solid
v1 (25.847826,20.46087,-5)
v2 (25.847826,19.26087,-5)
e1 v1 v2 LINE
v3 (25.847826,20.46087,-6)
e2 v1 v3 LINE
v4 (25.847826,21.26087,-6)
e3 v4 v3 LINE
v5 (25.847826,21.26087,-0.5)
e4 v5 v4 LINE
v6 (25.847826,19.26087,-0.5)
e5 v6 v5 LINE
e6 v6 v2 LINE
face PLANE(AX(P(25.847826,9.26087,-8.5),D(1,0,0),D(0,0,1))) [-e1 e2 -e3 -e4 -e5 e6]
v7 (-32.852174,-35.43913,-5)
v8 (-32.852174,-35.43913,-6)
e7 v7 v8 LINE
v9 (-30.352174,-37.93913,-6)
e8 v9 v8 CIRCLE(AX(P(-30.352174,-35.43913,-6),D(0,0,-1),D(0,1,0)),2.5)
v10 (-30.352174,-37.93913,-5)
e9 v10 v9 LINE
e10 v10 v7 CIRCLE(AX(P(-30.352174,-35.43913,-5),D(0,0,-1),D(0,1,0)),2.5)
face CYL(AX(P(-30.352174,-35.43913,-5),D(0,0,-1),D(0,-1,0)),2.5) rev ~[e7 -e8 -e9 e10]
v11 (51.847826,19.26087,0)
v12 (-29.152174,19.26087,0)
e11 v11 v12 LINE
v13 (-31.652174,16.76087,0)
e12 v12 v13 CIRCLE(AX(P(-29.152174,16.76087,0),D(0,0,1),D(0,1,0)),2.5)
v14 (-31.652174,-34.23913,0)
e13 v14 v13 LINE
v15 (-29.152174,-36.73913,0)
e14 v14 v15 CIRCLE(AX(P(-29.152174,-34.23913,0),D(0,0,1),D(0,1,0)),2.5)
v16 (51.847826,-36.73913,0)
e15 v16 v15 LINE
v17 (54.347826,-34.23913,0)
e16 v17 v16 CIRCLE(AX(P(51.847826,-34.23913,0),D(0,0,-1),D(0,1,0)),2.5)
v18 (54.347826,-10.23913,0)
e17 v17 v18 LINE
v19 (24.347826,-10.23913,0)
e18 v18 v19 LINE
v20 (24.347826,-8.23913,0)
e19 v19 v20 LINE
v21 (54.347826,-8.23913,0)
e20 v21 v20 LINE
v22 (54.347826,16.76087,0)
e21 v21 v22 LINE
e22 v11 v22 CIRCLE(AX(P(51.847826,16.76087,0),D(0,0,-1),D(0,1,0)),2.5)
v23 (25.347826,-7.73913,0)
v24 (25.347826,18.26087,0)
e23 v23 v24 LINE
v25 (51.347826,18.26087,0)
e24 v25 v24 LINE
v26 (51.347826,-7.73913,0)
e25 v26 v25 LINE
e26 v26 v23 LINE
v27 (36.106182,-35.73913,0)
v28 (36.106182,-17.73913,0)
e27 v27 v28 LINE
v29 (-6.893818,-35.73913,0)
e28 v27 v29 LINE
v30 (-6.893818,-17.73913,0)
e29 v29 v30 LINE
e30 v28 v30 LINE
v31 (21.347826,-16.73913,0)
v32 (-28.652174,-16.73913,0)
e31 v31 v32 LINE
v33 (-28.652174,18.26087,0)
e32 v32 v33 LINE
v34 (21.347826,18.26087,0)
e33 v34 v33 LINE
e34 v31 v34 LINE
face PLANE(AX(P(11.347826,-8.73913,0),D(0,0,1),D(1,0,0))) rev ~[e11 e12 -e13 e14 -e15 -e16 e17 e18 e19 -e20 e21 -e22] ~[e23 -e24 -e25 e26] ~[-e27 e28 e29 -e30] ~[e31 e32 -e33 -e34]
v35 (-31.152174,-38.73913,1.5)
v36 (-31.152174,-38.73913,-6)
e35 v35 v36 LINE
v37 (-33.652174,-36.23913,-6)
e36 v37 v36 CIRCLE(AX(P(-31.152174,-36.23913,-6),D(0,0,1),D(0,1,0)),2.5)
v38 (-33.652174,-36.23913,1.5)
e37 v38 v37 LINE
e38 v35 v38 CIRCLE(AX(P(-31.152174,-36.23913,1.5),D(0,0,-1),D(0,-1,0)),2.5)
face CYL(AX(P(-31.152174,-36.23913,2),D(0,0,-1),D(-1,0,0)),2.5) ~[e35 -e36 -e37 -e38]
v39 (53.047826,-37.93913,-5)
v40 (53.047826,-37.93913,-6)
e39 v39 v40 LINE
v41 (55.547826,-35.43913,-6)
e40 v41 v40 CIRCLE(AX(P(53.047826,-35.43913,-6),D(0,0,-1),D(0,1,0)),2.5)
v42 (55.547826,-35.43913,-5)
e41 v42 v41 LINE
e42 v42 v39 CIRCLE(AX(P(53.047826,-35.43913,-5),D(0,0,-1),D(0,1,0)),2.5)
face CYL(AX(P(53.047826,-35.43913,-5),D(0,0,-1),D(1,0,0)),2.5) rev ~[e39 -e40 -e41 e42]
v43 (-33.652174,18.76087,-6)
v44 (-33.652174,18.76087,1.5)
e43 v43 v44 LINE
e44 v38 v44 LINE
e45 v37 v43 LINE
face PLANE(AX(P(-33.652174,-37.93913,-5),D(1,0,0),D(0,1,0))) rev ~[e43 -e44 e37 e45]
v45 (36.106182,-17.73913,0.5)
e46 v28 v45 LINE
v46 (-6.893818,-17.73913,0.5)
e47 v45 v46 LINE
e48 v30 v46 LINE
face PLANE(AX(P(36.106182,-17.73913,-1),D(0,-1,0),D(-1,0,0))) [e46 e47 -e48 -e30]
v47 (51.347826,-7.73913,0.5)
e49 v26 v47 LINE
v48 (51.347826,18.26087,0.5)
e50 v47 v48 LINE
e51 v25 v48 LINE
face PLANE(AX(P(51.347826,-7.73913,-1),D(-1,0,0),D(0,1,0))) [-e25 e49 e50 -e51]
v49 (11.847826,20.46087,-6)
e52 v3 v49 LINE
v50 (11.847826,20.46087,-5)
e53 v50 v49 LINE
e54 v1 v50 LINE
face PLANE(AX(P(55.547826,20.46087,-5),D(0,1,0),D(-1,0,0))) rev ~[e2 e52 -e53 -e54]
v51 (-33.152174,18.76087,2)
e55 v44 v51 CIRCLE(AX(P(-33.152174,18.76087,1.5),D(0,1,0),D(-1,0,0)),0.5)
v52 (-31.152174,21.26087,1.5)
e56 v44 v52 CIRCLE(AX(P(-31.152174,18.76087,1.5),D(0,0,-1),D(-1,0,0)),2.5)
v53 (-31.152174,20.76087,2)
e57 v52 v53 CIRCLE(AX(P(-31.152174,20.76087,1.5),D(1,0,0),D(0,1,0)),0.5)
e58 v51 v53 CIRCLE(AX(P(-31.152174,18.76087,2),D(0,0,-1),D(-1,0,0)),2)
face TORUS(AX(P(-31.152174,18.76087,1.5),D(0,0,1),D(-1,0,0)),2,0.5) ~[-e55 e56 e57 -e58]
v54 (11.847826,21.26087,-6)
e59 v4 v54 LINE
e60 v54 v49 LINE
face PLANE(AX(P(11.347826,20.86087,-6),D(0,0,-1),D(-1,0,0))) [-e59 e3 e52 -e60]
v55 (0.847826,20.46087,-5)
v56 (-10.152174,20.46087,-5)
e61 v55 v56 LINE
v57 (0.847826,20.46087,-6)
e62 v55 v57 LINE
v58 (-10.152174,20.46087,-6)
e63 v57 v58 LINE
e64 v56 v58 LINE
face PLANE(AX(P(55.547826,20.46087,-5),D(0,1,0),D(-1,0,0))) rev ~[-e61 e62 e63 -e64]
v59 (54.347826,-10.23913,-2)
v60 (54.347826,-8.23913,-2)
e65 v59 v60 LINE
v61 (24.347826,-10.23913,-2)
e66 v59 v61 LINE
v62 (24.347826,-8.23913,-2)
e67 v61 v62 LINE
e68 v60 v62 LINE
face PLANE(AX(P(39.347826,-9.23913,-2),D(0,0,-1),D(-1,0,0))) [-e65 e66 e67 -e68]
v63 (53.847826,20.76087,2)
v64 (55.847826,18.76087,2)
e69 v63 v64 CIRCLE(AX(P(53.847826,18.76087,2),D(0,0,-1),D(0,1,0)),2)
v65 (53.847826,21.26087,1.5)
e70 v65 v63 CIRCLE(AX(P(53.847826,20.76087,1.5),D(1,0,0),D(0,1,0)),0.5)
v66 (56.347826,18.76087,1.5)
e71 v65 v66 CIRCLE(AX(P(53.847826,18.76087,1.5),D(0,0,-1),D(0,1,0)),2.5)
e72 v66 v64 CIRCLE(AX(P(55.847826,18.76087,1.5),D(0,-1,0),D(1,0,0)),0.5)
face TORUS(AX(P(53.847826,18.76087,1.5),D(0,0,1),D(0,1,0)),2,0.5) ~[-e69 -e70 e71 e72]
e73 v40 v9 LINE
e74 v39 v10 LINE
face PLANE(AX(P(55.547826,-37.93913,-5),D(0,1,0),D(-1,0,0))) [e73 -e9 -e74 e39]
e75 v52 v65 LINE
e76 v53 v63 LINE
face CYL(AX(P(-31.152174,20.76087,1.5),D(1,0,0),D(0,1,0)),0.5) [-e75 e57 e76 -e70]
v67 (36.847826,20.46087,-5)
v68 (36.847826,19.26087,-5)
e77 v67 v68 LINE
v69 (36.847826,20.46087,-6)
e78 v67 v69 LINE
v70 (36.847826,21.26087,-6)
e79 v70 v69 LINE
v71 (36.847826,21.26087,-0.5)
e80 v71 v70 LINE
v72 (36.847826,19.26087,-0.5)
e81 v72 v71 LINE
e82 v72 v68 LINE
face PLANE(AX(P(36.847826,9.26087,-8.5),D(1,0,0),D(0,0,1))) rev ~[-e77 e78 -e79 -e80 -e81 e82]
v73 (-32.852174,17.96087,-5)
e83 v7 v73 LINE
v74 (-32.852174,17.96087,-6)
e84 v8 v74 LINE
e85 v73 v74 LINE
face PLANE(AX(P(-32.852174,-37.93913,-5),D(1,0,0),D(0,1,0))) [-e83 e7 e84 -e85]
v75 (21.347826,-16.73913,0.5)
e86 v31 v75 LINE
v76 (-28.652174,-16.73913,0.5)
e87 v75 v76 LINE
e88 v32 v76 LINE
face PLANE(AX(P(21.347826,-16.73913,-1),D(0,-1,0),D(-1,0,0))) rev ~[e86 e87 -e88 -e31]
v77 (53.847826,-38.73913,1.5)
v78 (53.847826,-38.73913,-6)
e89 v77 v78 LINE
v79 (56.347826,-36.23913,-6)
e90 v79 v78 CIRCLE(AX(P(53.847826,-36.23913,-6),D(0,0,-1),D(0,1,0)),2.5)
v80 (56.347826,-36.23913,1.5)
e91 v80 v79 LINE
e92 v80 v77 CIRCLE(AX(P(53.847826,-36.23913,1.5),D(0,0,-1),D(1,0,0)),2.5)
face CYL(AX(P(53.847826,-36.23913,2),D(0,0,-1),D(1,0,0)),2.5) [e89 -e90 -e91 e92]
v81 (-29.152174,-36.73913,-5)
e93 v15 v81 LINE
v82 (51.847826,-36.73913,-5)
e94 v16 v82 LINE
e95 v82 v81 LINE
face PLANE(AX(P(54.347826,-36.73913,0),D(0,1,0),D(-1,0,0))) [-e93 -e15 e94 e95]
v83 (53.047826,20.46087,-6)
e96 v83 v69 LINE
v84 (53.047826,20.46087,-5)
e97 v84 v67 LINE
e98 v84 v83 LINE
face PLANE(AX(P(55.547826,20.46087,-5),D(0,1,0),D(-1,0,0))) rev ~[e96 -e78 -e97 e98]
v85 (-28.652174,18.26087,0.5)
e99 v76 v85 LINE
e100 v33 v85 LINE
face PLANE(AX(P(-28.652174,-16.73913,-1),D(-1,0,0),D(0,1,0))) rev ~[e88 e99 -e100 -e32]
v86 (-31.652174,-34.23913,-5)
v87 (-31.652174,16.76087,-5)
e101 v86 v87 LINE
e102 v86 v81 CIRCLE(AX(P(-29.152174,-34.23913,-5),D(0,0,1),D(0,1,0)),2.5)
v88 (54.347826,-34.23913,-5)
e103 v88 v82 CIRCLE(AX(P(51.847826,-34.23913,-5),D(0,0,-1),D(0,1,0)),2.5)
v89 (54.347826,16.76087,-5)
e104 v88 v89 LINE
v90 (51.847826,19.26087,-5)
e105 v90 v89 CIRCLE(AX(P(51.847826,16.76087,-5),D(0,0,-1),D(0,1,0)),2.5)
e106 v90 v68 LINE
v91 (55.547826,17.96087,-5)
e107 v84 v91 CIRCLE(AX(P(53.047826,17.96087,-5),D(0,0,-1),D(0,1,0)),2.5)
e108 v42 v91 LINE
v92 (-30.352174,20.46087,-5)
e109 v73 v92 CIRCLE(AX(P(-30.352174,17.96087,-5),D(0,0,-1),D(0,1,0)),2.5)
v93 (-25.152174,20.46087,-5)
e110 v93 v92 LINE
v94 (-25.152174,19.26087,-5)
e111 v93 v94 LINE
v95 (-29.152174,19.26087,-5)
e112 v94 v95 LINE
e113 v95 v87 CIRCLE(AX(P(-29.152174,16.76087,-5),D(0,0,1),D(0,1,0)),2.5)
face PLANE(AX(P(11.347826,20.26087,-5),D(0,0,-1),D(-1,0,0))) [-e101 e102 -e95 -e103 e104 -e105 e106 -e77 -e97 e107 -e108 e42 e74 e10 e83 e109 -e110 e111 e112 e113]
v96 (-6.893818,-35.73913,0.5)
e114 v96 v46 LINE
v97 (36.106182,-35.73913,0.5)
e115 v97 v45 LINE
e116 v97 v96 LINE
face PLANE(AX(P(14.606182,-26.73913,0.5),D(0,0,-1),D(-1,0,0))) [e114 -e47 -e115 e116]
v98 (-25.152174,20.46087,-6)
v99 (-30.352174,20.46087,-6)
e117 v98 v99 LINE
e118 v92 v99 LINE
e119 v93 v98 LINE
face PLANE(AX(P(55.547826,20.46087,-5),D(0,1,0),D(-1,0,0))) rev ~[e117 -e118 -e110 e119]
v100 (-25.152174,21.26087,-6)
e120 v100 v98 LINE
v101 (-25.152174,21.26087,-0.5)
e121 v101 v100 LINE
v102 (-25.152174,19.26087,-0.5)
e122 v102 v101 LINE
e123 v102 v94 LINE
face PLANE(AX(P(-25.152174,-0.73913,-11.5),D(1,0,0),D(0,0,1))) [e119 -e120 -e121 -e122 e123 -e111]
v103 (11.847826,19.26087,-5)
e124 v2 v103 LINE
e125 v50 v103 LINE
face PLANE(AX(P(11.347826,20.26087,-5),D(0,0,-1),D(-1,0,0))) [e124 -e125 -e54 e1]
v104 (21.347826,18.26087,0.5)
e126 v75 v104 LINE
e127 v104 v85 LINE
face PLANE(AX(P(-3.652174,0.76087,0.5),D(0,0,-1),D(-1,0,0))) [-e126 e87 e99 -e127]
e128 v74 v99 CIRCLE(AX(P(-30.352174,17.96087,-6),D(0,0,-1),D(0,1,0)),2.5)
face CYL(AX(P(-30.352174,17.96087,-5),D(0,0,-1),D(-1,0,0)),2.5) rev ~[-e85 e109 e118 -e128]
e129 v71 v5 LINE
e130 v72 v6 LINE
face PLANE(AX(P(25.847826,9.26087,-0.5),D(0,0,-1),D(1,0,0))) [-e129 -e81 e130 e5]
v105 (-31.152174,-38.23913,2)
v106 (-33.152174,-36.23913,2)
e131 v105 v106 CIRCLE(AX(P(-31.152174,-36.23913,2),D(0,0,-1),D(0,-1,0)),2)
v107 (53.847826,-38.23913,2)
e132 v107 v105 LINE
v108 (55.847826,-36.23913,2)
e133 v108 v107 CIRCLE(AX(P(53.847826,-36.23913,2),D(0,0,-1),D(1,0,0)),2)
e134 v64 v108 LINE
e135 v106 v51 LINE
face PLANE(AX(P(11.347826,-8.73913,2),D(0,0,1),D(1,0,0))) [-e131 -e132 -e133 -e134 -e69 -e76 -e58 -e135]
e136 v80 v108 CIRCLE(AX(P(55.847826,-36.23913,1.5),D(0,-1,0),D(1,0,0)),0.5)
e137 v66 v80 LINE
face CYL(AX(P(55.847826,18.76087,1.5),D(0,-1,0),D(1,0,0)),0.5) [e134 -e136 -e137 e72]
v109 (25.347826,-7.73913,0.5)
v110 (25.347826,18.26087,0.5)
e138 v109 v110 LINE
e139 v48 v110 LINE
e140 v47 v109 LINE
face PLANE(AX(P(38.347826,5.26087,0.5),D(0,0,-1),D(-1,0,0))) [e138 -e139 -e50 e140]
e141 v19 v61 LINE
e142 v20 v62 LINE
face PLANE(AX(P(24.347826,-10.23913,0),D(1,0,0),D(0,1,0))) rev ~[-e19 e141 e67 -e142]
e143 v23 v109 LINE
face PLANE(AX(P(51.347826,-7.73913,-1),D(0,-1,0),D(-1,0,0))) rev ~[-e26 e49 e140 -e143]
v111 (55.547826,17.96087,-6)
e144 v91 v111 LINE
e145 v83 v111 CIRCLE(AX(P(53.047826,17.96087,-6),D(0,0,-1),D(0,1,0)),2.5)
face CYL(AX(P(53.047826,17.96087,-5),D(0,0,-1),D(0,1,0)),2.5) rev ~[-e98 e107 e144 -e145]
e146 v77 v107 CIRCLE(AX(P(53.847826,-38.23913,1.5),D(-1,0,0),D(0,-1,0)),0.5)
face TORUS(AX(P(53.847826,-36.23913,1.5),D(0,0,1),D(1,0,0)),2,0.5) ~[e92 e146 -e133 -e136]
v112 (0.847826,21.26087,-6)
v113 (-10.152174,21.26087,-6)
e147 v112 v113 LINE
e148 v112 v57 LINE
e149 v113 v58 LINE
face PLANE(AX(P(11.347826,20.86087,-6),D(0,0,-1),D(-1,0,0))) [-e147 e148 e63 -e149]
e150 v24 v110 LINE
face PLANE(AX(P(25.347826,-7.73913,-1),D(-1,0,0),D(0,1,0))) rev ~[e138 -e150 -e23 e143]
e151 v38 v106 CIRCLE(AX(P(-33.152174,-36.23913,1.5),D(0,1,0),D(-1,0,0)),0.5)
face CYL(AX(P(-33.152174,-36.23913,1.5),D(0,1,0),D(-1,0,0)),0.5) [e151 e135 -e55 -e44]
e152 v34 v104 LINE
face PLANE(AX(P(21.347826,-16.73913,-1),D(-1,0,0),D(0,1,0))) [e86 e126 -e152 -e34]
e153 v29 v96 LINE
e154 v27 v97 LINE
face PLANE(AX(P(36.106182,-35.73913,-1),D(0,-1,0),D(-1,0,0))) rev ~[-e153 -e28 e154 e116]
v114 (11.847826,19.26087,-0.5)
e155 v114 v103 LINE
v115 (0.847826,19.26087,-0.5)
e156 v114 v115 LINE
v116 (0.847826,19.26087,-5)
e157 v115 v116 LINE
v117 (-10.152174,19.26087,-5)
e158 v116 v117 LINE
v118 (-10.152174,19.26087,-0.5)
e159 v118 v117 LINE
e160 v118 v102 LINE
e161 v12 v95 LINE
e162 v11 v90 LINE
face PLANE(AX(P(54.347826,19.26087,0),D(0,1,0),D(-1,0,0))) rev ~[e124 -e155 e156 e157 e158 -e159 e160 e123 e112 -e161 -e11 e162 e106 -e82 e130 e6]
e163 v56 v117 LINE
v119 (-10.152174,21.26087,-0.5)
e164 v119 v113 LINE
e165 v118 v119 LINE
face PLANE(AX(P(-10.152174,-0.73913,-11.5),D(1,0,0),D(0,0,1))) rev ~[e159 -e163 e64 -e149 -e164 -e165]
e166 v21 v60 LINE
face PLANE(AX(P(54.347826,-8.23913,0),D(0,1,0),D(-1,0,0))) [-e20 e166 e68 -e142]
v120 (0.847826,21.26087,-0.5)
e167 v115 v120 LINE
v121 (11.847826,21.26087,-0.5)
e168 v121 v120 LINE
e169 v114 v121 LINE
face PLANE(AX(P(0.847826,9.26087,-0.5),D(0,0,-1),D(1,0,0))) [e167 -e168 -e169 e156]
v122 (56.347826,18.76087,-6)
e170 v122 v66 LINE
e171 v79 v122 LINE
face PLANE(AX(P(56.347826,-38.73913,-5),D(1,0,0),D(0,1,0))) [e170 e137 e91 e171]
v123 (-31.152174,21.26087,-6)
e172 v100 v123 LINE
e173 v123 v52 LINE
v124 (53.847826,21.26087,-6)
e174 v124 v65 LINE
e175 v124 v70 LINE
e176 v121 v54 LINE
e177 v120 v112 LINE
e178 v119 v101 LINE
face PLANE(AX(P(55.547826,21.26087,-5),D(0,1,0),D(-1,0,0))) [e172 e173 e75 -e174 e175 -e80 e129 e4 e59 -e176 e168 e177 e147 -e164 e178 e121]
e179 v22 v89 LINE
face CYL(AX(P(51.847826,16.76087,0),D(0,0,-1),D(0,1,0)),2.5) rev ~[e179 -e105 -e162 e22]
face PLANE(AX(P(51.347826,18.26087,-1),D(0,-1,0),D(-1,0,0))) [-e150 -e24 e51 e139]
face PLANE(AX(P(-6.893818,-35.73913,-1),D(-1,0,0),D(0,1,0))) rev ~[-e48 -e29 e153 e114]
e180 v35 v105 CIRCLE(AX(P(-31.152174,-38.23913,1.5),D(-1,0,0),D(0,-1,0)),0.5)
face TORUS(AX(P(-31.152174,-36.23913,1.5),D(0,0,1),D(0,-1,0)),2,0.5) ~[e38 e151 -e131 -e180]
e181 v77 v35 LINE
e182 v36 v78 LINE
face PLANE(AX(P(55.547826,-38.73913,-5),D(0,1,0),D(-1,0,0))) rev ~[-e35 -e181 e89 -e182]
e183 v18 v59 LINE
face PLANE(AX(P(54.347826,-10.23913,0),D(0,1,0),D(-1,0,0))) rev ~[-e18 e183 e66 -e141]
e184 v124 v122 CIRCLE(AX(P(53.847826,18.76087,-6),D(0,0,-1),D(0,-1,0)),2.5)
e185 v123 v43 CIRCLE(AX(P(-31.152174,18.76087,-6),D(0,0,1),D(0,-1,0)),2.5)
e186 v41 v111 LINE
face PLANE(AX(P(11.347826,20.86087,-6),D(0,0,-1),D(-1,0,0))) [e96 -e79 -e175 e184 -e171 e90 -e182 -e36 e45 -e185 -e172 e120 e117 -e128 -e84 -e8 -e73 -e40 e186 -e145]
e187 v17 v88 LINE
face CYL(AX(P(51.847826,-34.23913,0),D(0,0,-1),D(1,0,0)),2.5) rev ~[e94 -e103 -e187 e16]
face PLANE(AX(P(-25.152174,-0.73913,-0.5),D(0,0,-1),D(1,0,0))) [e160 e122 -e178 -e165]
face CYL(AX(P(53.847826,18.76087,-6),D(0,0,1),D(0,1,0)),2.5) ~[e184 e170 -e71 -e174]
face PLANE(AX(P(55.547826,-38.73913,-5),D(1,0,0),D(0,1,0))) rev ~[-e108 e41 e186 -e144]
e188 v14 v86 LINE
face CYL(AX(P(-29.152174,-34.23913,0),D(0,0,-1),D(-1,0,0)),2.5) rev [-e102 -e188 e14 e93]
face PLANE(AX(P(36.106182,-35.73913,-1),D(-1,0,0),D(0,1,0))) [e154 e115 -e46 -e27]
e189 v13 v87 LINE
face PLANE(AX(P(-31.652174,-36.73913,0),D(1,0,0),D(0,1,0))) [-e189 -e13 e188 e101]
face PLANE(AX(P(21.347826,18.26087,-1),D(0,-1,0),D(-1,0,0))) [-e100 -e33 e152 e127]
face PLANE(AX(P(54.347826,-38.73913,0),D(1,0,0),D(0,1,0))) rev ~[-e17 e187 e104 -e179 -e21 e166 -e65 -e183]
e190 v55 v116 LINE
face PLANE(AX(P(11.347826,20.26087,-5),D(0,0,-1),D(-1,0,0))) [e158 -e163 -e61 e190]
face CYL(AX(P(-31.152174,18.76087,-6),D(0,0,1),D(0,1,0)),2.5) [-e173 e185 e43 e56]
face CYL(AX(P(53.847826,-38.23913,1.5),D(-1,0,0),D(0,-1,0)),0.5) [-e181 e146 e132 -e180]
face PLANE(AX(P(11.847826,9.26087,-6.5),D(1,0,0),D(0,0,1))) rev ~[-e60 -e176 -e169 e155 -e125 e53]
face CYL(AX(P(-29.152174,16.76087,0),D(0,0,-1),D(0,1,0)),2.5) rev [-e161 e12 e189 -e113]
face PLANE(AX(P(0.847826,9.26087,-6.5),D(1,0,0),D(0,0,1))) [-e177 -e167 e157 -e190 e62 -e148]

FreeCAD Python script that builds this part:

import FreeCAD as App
import Part
import Sketcher
from FreeCAD import Vector


def edges_at(feature, points):
    """Names of the edges that pass closest to the given points."""
    edges = feature.Shape.Edges
    near = lambda p: min(range(len(edges)), key=lambda i: edges[i].distToShape(Part.Vertex(*p))[0])
    return sorted({f"Edge{near(p) + 1}" for p in points})


def add_polygon(sketch, points):
    """Adds a closed chain of lines whose ends are joined by coincident constraints."""
    first, n = sketch.GeometryCount, len(points)
    for a, b in zip(points, points[1:] + points[:1]):
        sketch.addGeometry(Part.LineSegment(App.Vector(*a, 0), App.Vector(*b, 0)), False)
    for i in range(n):
        sketch.addConstraint(Sketcher.Constraint("Coincident", first + i, 2, first + (i + 1) % n, 1))

doc = App.newDocument("Part")
body = doc.addObject("PartDesign::Body", "Body")

# Sketch on XY plane
sketch1 = doc.addObject("Sketcher::SketchObject", "Sketch")
body.addObject(sketch1)
sketch1.AttachmentSupport = (doc.XY_Plane, [""])
sketch1.MapMode = "FlatFace"
add_polygon(sketch1, [(-34, 21), (-34, -39), (56, -39), (56, 21)])  # lines 0-3
sketch1.addConstraint(Sketcher.Constraint("Vertical", 0))
sketch1.addConstraint(Sketcher.Constraint("Horizontal", 1))
sketch1.addConstraint(Sketcher.Constraint("Vertical", 2))
sketch1.addConstraint(Sketcher.Constraint("Horizontal", 3))
sketch1.addConstraint(Sketcher.Constraint("DistanceX", 1, 1, 1, 2, 90.0))
sketch1.addConstraint(Sketcher.Constraint("DistanceY", 0, 2, 0, 1, 60.0))
sketch1.addConstraint(Sketcher.Constraint("DistanceY", 0, 2, -1, 1, 38.73913))
sketch1.addConstraint(Sketcher.Constraint("DistanceX", 0, 2, -1, 1, 33.652174))
pad1 = doc.addObject("PartDesign::Pad", "Pad")
body.addObject(pad1)
pad1.Profile = sketch1
pad1.Length = 2

# Sketch on XY plane
sketch2 = doc.addObject("Sketcher::SketchObject", "Sketch001")
body.addObject(sketch2)
sketch2.AttachmentSupport = (doc.XY_Plane, [""])
sketch2.MapMode = "FlatFace"
add_polygon(sketch2, [(21, 18), (21, -17), (-29, -17), (-29, 18)])  # lines 0-3
sketch2.addConstraint(Sketcher.Constraint("Vertical", 0))
sketch2.addConstraint(Sketcher.Constraint("Horizontal", 1))
sketch2.addConstraint(Sketcher.Constraint("Vertical", 2))
sketch2.addConstraint(Sketcher.Constraint("Horizontal", 3))
sketch2.addConstraint(Sketcher.Constraint("DistanceX", 1, 2, 1, 1, 50.0))
sketch2.addConstraint(Sketcher.Constraint("DistanceY", 0, 2, 0, 1, 35.0))
sketch2.addConstraint(Sketcher.Constraint("DistanceY", 0, 2, -1, 1, 16.73913))
sketch2.addConstraint(Sketcher.Constraint("DistanceX", -1, 1, 0, 2, 21.347826))
pad2 = doc.addObject("PartDesign::Pad", "Pad001")
body.addObject(pad2)
pad2.Profile = sketch2
pad2.Length = 1
pad2.Reversed = True

# Sketch on XY plane
sketch3 = doc.addObject("Sketcher::SketchObject", "Sketch002")
body.addObject(sketch3)
sketch3.AttachmentSupport = (doc.XY_Plane, [""])
sketch3.MapMode = "FlatFace"
sketch3.AttachmentOffset = App.Placement(Vector(0, 0, -1), App.Rotation())
add_polygon(sketch3, [(-11, 12), (-11, -1), (-25, -1), (-25, 12)])  # lines 0-3
sketch3.addConstraint(Sketcher.Constraint("Vertical", 0))
sketch3.addConstraint(Sketcher.Constraint("Horizontal", 1))
sketch3.addConstraint(Sketcher.Constraint("Vertical", 2))
sketch3.addConstraint(Sketcher.Constraint("Horizontal", 3))
sketch3.addConstraint(Sketcher.Constraint("DistanceX", 1, 2, 1, 1, 14.0))
sketch3.addConstraint(Sketcher.Constraint("DistanceY", 0, 2, 0, 1, 13.0))
sketch3.addConstraint(Sketcher.Constraint("DistanceY", 0, 2, -1, 1, 0.73913))
sketch3.addConstraint(Sketcher.Constraint("DistanceX", 0, 2, -1, 1, 10.652174))
pad3 = doc.addObject("PartDesign::Pad", "Pad002")
body.addObject(pad3)
pad3.Profile = sketch3
pad3.Length = 10
pad3.Reversed = True

# Sketch on XY plane
sketch4 = doc.addObject("Sketcher::SketchObject", "Sketch003")
body.addObject(sketch4)
sketch4.AttachmentSupport = (doc.XY_Plane, [""])
sketch4.MapMode = "FlatFace"
sketch4.AttachmentOffset = App.Placement(Vector(0, 0, -1), App.Rotation())
add_polygon(sketch4, [(11, 21), (11, 9), (1, 9), (1, 21)])  # lines 0-3
sketch4.addConstraint(Sketcher.Constraint("Vertical", 0))
sketch4.addConstraint(Sketcher.Constraint("Horizontal", 1))
sketch4.addConstraint(Sketcher.Constraint("Vertical", 2))
sketch4.addConstraint(Sketcher.Constraint("Horizontal", 3))
sketch4.addConstraint(Sketcher.Constraint("DistanceX", 1, 2, 1, 1, 10.0))
sketch4.addConstraint(Sketcher.Constraint("DistanceY", 0, 2, 0, 1, 12.0))
sketch4.addConstraint(Sketcher.Constraint("DistanceY", -1, 1, 0, 2, 9.26087))
sketch4.addConstraint(Sketcher.Constraint("DistanceX", -1, 1, 0, 2, 11.347826))
pad4 = doc.addObject("PartDesign::Pad", "Pad003")
body.addObject(pad4)
pad4.Profile = sketch4
pad4.Length = 5
pad4.Reversed = True

# Sketch on XY plane
sketch5 = doc.addObject("Sketcher::SketchObject", "Sketch004")
body.addObject(sketch5)
sketch5.AttachmentSupport = (doc.XY_Plane, [""])
sketch5.MapMode = "FlatFace"
add_polygon(sketch5, [(51, 18), (51, -8), (25, -8), (25, 18)])  # lines 0-3
sketch5.addConstraint(Sketcher.Constraint("Vertical", 0))
sketch5.addConstraint(Sketcher.Constraint("Horizontal", 1))
sketch5.addConstraint(Sketcher.Constraint("Vertical", 2))
sketch5.addConstraint(Sketcher.Constraint("Horizontal", 3))
sketch5.addConstraint(Sketcher.Constraint("Equal", 3, 0))
sketch5.addConstraint(Sketcher.Constraint("DistanceX", 1, 2, 1, 1, 26.0))
sketch5.addConstraint(Sketcher.Constraint("DistanceY", 0, 2, -1, 1, 7.73913))
sketch5.addConstraint(Sketcher.Constraint("DistanceX", -1, 1, 0, 2, 51.347826))
pad5 = doc.addObject("PartDesign::Pad", "Pad004")
body.addObject(pad5)
pad5.Profile = sketch5
pad5.Length = 1
pad5.Reversed = True

# Sketch on XY plane
sketch6 = doc.addObject("Sketcher::SketchObject", "Sketch005")
body.addObject(sketch6)
sketch6.AttachmentSupport = (doc.XY_Plane, [""])
sketch6.MapMode = "FlatFace"
sketch6.AttachmentOffset = App.Placement(Vector(0, 0, -1), App.Rotation())
add_polygon(sketch6, [(36, 19), (36, 9), (26, 9), (26, 19)])  # lines 0-3
sketch6.addConstraint(Sketcher.Constraint("Vertical", 0))
sketch6.addConstraint(Sketcher.Constraint("Horizontal", 1))
sketch6.addConstraint(Sketcher.Constraint("Vertical", 2))
sketch6.addConstraint(Sketcher.Constraint("Horizontal", 3))
sketch6.addConstraint(Sketcher.Constraint("Equal", 3, 0))
sketch6.addConstraint(Sketcher.Constraint("DistanceX", 1, 2, 1, 1, 10.0))
sketch6.addConstraint(Sketcher.Constraint("DistanceY", -1, 1, 0, 2, 9.26087))
sketch6.addConstraint(Sketcher.Constraint("DistanceX", -1, 1, 0, 2, 36.347826))
pad6 = doc.addObject("PartDesign::Pad", "Pad005")
body.addObject(pad6)
pad6.Profile = sketch6
pad6.Length = 7
pad6.Reversed = True

# Sketch on XY plane
sketch7 = doc.addObject("Sketcher::SketchObject", "Sketch006")
body.addObject(sketch7)
sketch7.AttachmentSupport = (doc.XY_Plane, [""])
sketch7.MapMode = "FlatFace"
add_polygon(sketch7, [(36, -18), (36, -36), (-7, -36), (-7, -18)])  # lines 0-3
sketch7.addConstraint(Sketcher.Constraint("Vertical", 0))
sketch7.addConstraint(Sketcher.Constraint("Horizontal", 1))
sketch7.addConstraint(Sketcher.Constraint("Vertical", 2))
sketch7.addConstraint(Sketcher.Constraint("Horizontal", 3))
sketch7.addConstraint(Sketcher.Constraint("DistanceX", 1, 2, 1, 1, 43.0))
sketch7.addConstraint(Sketcher.Constraint("DistanceY", 0, 2, 0, 1, 18.0))
sketch7.addConstraint(Sketcher.Constraint("DistanceX", -1, 1, 0, 2, 36.106182))
sketch7.addConstraint(Sketcher.Constraint("DistanceY", 0, 2, -1, 1, 35.73913))
pad7 = doc.addObject("PartDesign::Pad", "Pad006")
body.addObject(pad7)
pad7.Profile = sketch7
pad7.Length = 1
pad7.Reversed = True

# Sketch on XY plane
sketch8 = doc.addObject("Sketcher::SketchObject", "Sketch007")
body.addObject(sketch8)
sketch8.AttachmentSupport = (doc.XY_Plane, [""])
sketch8.MapMode = "FlatFace"
add_polygon(sketch8, [(56.3, 21.3), (56.3, -38.7), (54.3, -38.7), (54.3, 21.3)])  # lines 0-3
sketch8.addConstraint(Sketcher.Constraint("Vertical", 0))
sketch8.addConstraint(Sketcher.Constraint("Horizontal", 1))
sketch8.addConstraint(Sketcher.Constraint("Vertical", 2))
sketch8.addConstraint(Sketcher.Constraint("Horizontal", 3))
sketch8.addConstraint(Sketcher.Constraint("DistanceX", 1, 2, 1, 1, 2.0))
sketch8.addConstraint(Sketcher.Constraint("DistanceY", 0, 2, 0, 1, 60.0))
sketch8.addConstraint(Sketcher.Constraint("DistanceY", 0, 2, -1, 1, 38.73913))
sketch8.addConstraint(Sketcher.Constraint("DistanceX", -1, 1, 0, 2, 56.347826))
pad8 = doc.addObject("PartDesign::Pad", "Pad007")
body.addObject(pad8)
pad8.Profile = sketch8
pad8.Length = 5
pad8.Reversed = True

# Sketch on XY plane
sketch9 = doc.addObject("Sketcher::SketchObject", "Sketch008")
body.addObject(sketch9)
sketch9.AttachmentSupport = (doc.XY_Plane, [""])
sketch9.MapMode = "FlatFace"
add_polygon(sketch9, [(54.3, -36.7), (54.3, -38.7), (-33.7, -38.7), (-33.7, -36.7)])  # lines 0-3
sketch9.addConstraint(Sketcher.Constraint("Vertical", 0))
sketch9.addConstraint(Sketcher.Constraint("Horizontal", 1))
sketch9.addConstraint(Sketcher.Constraint("Vertical", 2))
sketch9.addConstraint(Sketcher.Constraint("Horizontal", 3))
sketch9.addConstraint(Sketcher.Constraint("DistanceX", 1, 2, 1, 1, 88.0))
sketch9.addConstraint(Sketcher.Constraint("DistanceY", 0, 2, 0, 1, 2.0))
sketch9.addConstraint(Sketcher.Constraint("DistanceY", 0, 2, -1, 1, 38.73913))
sketch9.addConstraint(Sketcher.Constraint("DistanceX", -1, 1, 0, 2, 54.347826))
pad9 = doc.addObject("PartDesign::Pad", "Pad008")
body.addObject(pad9)
pad9.Profile = sketch9
pad9.Length = 5
pad9.Reversed = True

# Sketch on XY plane
sketch10 = doc.addObject("Sketcher::SketchObject", "Sketch009")
body.addObject(sketch10)
sketch10.AttachmentSupport = (doc.XY_Plane, [""])
sketch10.MapMode = "FlatFace"
add_polygon(sketch10, [(-31.7, 21.3), (-31.7, -36.7), (-33.7, -36.7), (-33.7, 21.3)])  # lines 0-3
sketch10.addConstraint(Sketcher.Constraint("Vertical", 0))
sketch10.addConstraint(Sketcher.Constraint("Horizontal", 1))
sketch10.addConstraint(Sketcher.Constraint("Vertical", 2))
sketch10.addConstraint(Sketcher.Constraint("Horizontal", 3))
sketch10.addConstraint(Sketcher.Constraint("DistanceX", 1, 2, 1, 1, 2.0))
sketch10.addConstraint(Sketcher.Constraint("DistanceY", 0, 2, 0, 1, 58.0))
sketch10.addConstraint(Sketcher.Constraint("DistanceY", 0, 2, -1, 1, 36.73913))
sketch10.addConstraint(Sketcher.Constraint("DistanceX", 0, 2, -1, 1, 31.652174))
pad10 = doc.addObject("PartDesign::Pad", "Pad009")
body.addObject(pad10)
pad10.Profile = sketch10
pad10.Length = 5
pad10.Reversed = True

# Sketch on XY plane
sketch11 = doc.addObject("Sketcher::SketchObject", "Sketch010")
body.addObject(sketch11)
sketch11.AttachmentSupport = (doc.XY_Plane, [""])
sketch11.MapMode = "FlatFace"
add_polygon(sketch11, [(54.3, 21.3), (54.3, 19.3), (-31.7, 19.3), (-31.7, 21.3)])  # lines 0-3
sketch11.addConstraint(Sketcher.Constraint("Vertical", 0))
sketch11.addConstraint(Sketcher.Constraint("Horizontal", 1))
sketch11.addConstraint(Sketcher.Constraint("Vertical", 2))
sketch11.addConstraint(Sketcher.Constraint("Horizontal", 3))
sketch11.addConstraint(Sketcher.Constraint("DistanceX", 1, 2, 1, 1, 86.0))
sketch11.addConstraint(Sketcher.Constraint("DistanceY", 0, 2, 0, 1, 2.0))
sketch11.addConstraint(Sketcher.Constraint("DistanceY", -1, 1, 0, 2, 19.26087))
sketch11.addConstraint(Sketcher.Constraint("DistanceX", -1, 1, 0, 2, 54.347826))
pad11 = doc.addObject("PartDesign::Pad", "Pad010")
body.addObject(pad11)
pad11.Profile = sketch11
pad11.Length = 5
pad11.Reversed = True

# Sketch on XY plane
sketch12 = doc.addObject("Sketcher::SketchObject", "Sketch011")
body.addObject(sketch12)
sketch12.AttachmentSupport = (doc.XY_Plane, [""])
sketch12.MapMode = "FlatFace"
sketch12.AttachmentOffset = App.Placement(Vector(0, 0, -5), App.Rotation())
add_polygon(sketch12, [(56.3, 21.3), (56.3, -38.7), (55.5, -38.7), (55.5, 21.3)])  # lines 0-3
sketch12.addConstraint(Sketcher.Constraint("Vertical", 0))
sketch12.addConstraint(Sketcher.Constraint("Horizontal", 1))
sketch12.addConstraint(Sketcher.Constraint("Vertical", 2))
sketch12.addConstraint(Sketcher.Constraint("Horizontal", 3))
sketch12.addConstraint(Sketcher.Constraint("DistanceY", 0, 2, 0, 1, 60.0))
sketch12.addConstraint(Sketcher.Constraint("DistanceX", 1, 2, 1, 1, 0.8))
sketch12.addConstraint(Sketcher.Constraint("DistanceY", 0, 2, -1, 1, 38.73913))
sketch12.addConstraint(Sketcher.Constraint("DistanceX", -1, 1, 0, 2, 56.347826))
pad12 = doc.addObject("PartDesign::Pad", "Pad011")
body.addObject(pad12)
pad12.Profile = sketch12
pad12.Length = 1
pad12.Reversed = True

# Sketch on XY plane
sketch13 = doc.addObject("Sketcher::SketchObject", "Sketch012")
body.addObject(sketch13)
sketch13.AttachmentSupport = (doc.XY_Plane, [""])
sketch13.MapMode = "FlatFace"
sketch13.AttachmentOffset = App.Placement(Vector(0, 0, -5), App.Rotation())
add_polygon(sketch13, [(55.5, -37.9), (55.5, -38.7), (-33.7, -38.7), (-33.7, -37.9)])  # lines 0-3
sketch13.addConstraint(Sketcher.Constraint("Vertical", 0))
sketch13.addConstraint(Sketcher.Constraint("Horizontal", 1))
sketch13.addConstraint(Sketcher.Constraint("Vertical", 2))
sketch13.addConstraint(Sketcher.Constraint("Horizontal", 3))
sketch13.addConstraint(Sketcher.Constraint("DistanceX", 1, 2, 1, 1, 89.2))
sketch13.addConstraint(Sketcher.Constraint("DistanceY", 0, 2, 0, 1, 0.8))
sketch13.addConstraint(Sketcher.Constraint("DistanceY", 0, 2, -1, 1, 38.73913))
sketch13.addConstraint(Sketcher.Constraint("DistanceX", -1, 1, 0, 2, 55.547826))
pad13 = doc.addObject("PartDesign::Pad", "Pad012")
body.addObject(pad13)
pad13.Profile = sketch13
pad13.Length = 1
pad13.Reversed = True

# Sketch on XY plane
sketch14 = doc.addObject("Sketcher::SketchObject", "Sketch013")
body.addObject(sketch14)
sketch14.AttachmentSupport = (doc.XY_Plane, [""])
sketch14.MapMode = "FlatFace"
sketch14.AttachmentOffset = App.Placement(Vector(0, 0, -5), App.Rotation())
add_polygon(sketch14, [(-32.9, 21.3), (-32.9, -37.9), (-33.7, -37.9), (-33.7, 21.3)])  # lines 0-3
sketch14.addConstraint(Sketcher.Constraint("Vertical", 0))
sketch14.addConstraint(Sketcher.Constraint("Horizontal", 1))
sketch14.addConstraint(Sketcher.Constraint("Vertical", 2))
sketch14.addConstraint(Sketcher.Constraint("Horizontal", 3))
sketch14.addConstraint(Sketcher.Constraint("DistanceX", 1, 2, 1, 1, 0.8))
sketch14.addConstraint(Sketcher.Constraint("DistanceY", 0, 2, 0, 1, 59.2))
sketch14.addConstraint(Sketcher.Constraint("DistanceY", 0, 2, -1, 1, 37.93913))
sketch14.addConstraint(Sketcher.Constraint("DistanceX", 0, 2, -1, 1, 32.852174))
pad14 = doc.addObject("PartDesign::Pad", "Pad013")
body.addObject(pad14)
pad14.Profile = sketch14
pad14.Length = 1
pad14.Reversed = True

# Sketch on XY plane
sketch15 = doc.addObject("Sketcher::SketchObject", "Sketch014")
body.addObject(sketch15)
sketch15.AttachmentSupport = (doc.XY_Plane, [""])
sketch15.MapMode = "FlatFace"
sketch15.AttachmentOffset = App.Placement(Vector(0, 0, -5), App.Rotation())
add_polygon(sketch15, [(55.5, 21.3), (55.5, 20.5), (-32.9, 20.5), (-32.9, 21.3)])  # lines 0-3
sketch15.addConstraint(Sketcher.Constraint("Vertical", 0))
sketch15.addConstraint(Sketcher.Constraint("Horizontal", 1))
sketch15.addConstraint(Sketcher.Constraint("Vertical", 2))
sketch15.addConstraint(Sketcher.Constraint("Horizontal", 3))
sketch15.addConstraint(Sketcher.Constraint("DistanceX", 1, 2, 1, 1, 88.4))
sketch15.addConstraint(Sketcher.Constraint("DistanceY", 0, 2, 0, 1, 0.8))
sketch15.addConstraint(Sketcher.Constraint("DistanceY", -1, 1, 0, 2, 20.46087))
sketch15.addConstraint(Sketcher.Constraint("DistanceX", -1, 1, 0, 2, 55.547826))
pad15 = doc.addObject("PartDesign::Pad", "Pad014")
body.addObject(pad15)
pad15.Profile = sketch15
pad15.Length = 1
pad15.Reversed = True

# Sketch on XZ plane
sketch16 = doc.addObject("Sketcher::SketchObject", "Sketch015")
body.addObject(sketch16)
sketch16.AttachmentSupport = (doc.XZ_Plane, [""])
sketch16.MapMode = "FlatFace"
sketch16.AttachmentOffset = App.Placement(Vector(0, 0, -9.26087), App.Rotation())
add_polygon(sketch16, [(26, 0), (26, -8), (37, -8), (37, 0)])  # lines 0-3
sketch16.addConstraint(Sketcher.Constraint("Vertical", 0))
sketch16.addConstraint(Sketcher.Constraint("Horizontal", 1))
sketch16.addConstraint(Sketcher.Constraint("Vertical", 2))
sketch16.addConstraint(Sketcher.Constraint("Horizontal", 3))
sketch16.addConstraint(Sketcher.Constraint("DistanceX", 1, 1, 1, 2, 11.0))
sketch16.addConstraint(Sketcher.Constraint("DistanceY", 0, 2, 0, 1, 8.0))
sketch16.addConstraint(Sketcher.Constraint("DistanceY", 0, 2, -1, 1, 8.5))
sketch16.addConstraint(Sketcher.Constraint("DistanceX", -1, 1, 0, 2, 25.847826))
pocket1 = doc.addObject("PartDesign::Pocket", "Pocket")
body.addObject(pocket1)
pocket1.Profile = sketch16
pocket1.Length = 34

# Sketch on XZ plane
sketch17 = doc.addObject("Sketcher::SketchObject", "Sketch016")
body.addObject(sketch17)
sketch17.AttachmentSupport = (doc.XZ_Plane, [""])
sketch17.MapMode = "FlatFace"
sketch17.AttachmentOffset = App.Placement(Vector(0, 0, -9.26087), App.Rotation())
add_polygon(sketch17, [(1, 0), (1, -6), (12, -6), (12, 0)])  # lines 0-3
sketch17.addConstraint(Sketcher.Constraint("Vertical", 0))
sketch17.addConstraint(Sketcher.Constraint("Horizontal", 1))
sketch17.addConstraint(Sketcher.Constraint("Vertical", 2))
sketch17.addConstraint(Sketcher.Constraint("Horizontal", 3))
sketch17.addConstraint(Sketcher.Constraint("DistanceX", 1, 1, 1, 2, 11.0))
sketch17.addConstraint(Sketcher.Constraint("DistanceY", 0, 2, 0, 1, 6.0))
sketch17.addConstraint(Sketcher.Constraint("DistanceY", 0, 2, -1, 1, 6.5))
sketch17.addConstraint(Sketcher.Constraint("DistanceX", -1, 1, 0, 2, 0.847826))
pocket2 = doc.addObject("PartDesign::Pocket", "Pocket001")
body.addObject(pocket2)
pocket2.Profile = sketch17
pocket2.Length = 34

# Sketch on XZ plane
sketch18 = doc.addObject("Sketcher::SketchObject", "Sketch017")
body.addObject(sketch18)
sketch18.AttachmentSupport = (doc.XZ_Plane, [""])
sketch18.MapMode = "FlatFace"
sketch18.AttachmentOffset = App.Placement(Vector(0, 0, 0.73913), App.Rotation())
add_polygon(sketch18, [(-25, 0), (-25, -12), (-10, -12), (-10, 0)])  # lines 0-3
sketch18.addConstraint(Sketcher.Constraint("Vertical", 0))
sketch18.addConstraint(Sketcher.Constraint("Horizontal", 1))
sketch18.addConstraint(Sketcher.Constraint("Vertical", 2))
sketch18.addConstraint(Sketcher.Constraint("Horizontal", 3))
sketch18.addConstraint(Sketcher.Constraint("DistanceX", 1, 1, 1, 2, 15.0))
sketch18.addConstraint(Sketcher.Constraint("DistanceY", 0, 2, 0, 1, 11.0))
sketch18.addConstraint(Sketcher.Constraint("DistanceY", 0, 2, -1, 1, 11.5))
sketch18.addConstraint(Sketcher.Constraint("DistanceX", 0, 2, -1, 1, 25.152174))
pocket3 = doc.addObject("PartDesign::Pocket", "Pocket002")
body.addObject(pocket3)
pocket3.Profile = sketch18
pocket3.Length = 34

# Sketch on XY plane
sketch19 = doc.addObject("Sketcher::SketchObject", "Sketch018")
body.addObject(sketch19)
sketch19.AttachmentSupport = (doc.XY_Plane, [""])
sketch19.MapMode = "FlatFace"
add_polygon(sketch19, [(54.3, -8.2), (54.3, -10.2), (24.3, -10.2), (24.3, -8.2)])  # lines 0-3
sketch19.addConstraint(Sketcher.Constraint("Vertical", 0))
sketch19.addConstraint(Sketcher.Constraint("Horizontal", 1))
sketch19.addConstraint(Sketcher.Constraint("Vertical", 2))
sketch19.addConstraint(Sketcher.Constraint("Horizontal", 3))
sketch19.addConstraint(Sketcher.Constraint("DistanceX", 1, 2, 1, 1, 30.0))
sketch19.addConstraint(Sketcher.Constraint("DistanceY", 0, 2, 0, 1, 2.0))
sketch19.addConstraint(Sketcher.Constraint("DistanceY", 0, 2, -1, 1, 10.23913))
sketch19.addConstraint(Sketcher.Constraint("DistanceX", -1, 1, 0, 2, 54.347826))
pad16 = doc.addObject("PartDesign::Pad", "Pad015")
body.addObject(pad16)
pad16.Profile = sketch19
pad16.Length = 2
pad16.Reversed = True

# Sketch on XY plane
sketch20 = doc.addObject("Sketcher::SketchObject", "Sketch019")
body.addObject(sketch20)
sketch20.AttachmentSupport = (doc.XY_Plane, [""])
sketch20.MapMode = "FlatFace"
sketch20.AttachmentOffset = App.Placement(Vector(0, 0, -1), App.Rotation())
add_polygon(sketch20, [(36, -18), (36, -36), (-7, -36), (-7, -18)])  # lines 0-3
sketch20.addConstraint(Sketcher.Constraint("Vertical", 0))
sketch20.addConstraint(Sketcher.Constraint("Horizontal", 1))
sketch20.addConstraint(Sketcher.Constraint("Vertical", 2))
sketch20.addConstraint(Sketcher.Constraint("Horizontal", 3))
sketch20.addConstraint(Sketcher.Constraint("DistanceX", 1, 2, 1, 1, 43.0))
sketch20.addConstraint(Sketcher.Constraint("DistanceY", 0, 2, 0, 1, 18.0))
sketch20.addConstraint(Sketcher.Constraint("DistanceX", -1, 1, 0, 2, 36.106182))
sketch20.addConstraint(Sketcher.Constraint("DistanceY", 0, 2, -1, 1, 35.73913))
pocket4 = doc.addObject("PartDesign::Pocket", "Pocket003")
body.addObject(pocket4)
pocket4.Profile = sketch20
pocket4.Length = 1.5
pocket4.Reversed = True

# Sketch on XY plane
sketch21 = doc.addObject("Sketcher::SketchObject", "Sketch020")
body.addObject(sketch21)
sketch21.AttachmentSupport = (doc.XY_Plane, [""])
sketch21.MapMode = "FlatFace"
sketch21.AttachmentOffset = App.Placement(Vector(0, 0, -1), App.Rotation())
add_polygon(sketch21, [(51, 18), (51, -8), (25, -8), (25, 18)])  # lines 0-3
sketch21.addConstraint(Sketcher.Constraint("Vertical", 0))
sketch21.addConstraint(Sketcher.Constraint("Horizontal", 1))
sketch21.addConstraint(Sketcher.Constraint("Vertical", 2))
sketch21.addConstraint(Sketcher.Constraint("Horizontal", 3))
sketch21.addConstraint(Sketcher.Constraint("Equal", 3, 0))
sketch21.addConstraint(Sketcher.Constraint("DistanceX", 1, 2, 1, 1, 26.0))
sketch21.addConstraint(Sketcher.Constraint("DistanceY", 0, 2, -1, 1, 7.73913))
sketch21.addConstraint(Sketcher.Constraint("DistanceX", -1, 1, 0, 2, 51.347826))
pocket5 = doc.addObject("PartDesign::Pocket", "Pocket004")
body.addObject(pocket5)
pocket5.Profile = sketch21
pocket5.Length = 1.5
pocket5.Reversed = True

# Sketch on XY plane
sketch22 = doc.addObject("Sketcher::SketchObject", "Sketch021")
body.addObject(sketch22)
sketch22.AttachmentSupport = (doc.XY_Plane, [""])
sketch22.MapMode = "FlatFace"
sketch22.AttachmentOffset = App.Placement(Vector(0, 0, -1), App.Rotation())
add_polygon(sketch22, [(21, 18), (21, -17), (-29, -17), (-29, 18)])  # lines 0-3
sketch22.addConstraint(Sketcher.Constraint("Vertical", 0))
sketch22.addConstraint(Sketcher.Constraint("Horizontal", 1))
sketch22.addConstraint(Sketcher.Constraint("Vertical", 2))
sketch22.addConstraint(Sketcher.Constraint("Horizontal", 3))
sketch22.addConstraint(Sketcher.Constraint("DistanceX", 1, 2, 1, 1, 50.0))
sketch22.addConstraint(Sketcher.Constraint("DistanceY", 0, 2, 0, 1, 35.0))
sketch22.addConstraint(Sketcher.Constraint("DistanceY", 0, 2, -1, 1, 16.73913))
sketch22.addConstraint(Sketcher.Constraint("DistanceX", -1, 1, 0, 2, 21.347826))
pocket6 = doc.addObject("PartDesign::Pocket", "Pocket005")
body.addObject(pocket6)
pocket6.Profile = sketch22
pocket6.Length = 1.5
pocket6.Reversed = True
doc.recompute()

fillet = doc.addObject("PartDesign::Fillet", "Fillet")
body.addObject(fillet)
fillet.Base = (pocket6, edges_at(pocket6, [
    (54.348, -36.739, -2.5),
    (-31.652, -36.739, -2.5),
    (54.348, 19.261, -2.5),
    (-31.652, 19.261, -2.5),
    (-33.652, 21.261, -2),
    (56.348, 21.261, -2),
    (56.348, -38.739, -2),
    (-33.652, -38.739, -2),
]))
fillet.Radius = 2.5
doc.recompute()

fillet2 = doc.addObject("PartDesign::Fillet", "Fillet001")
body.addObject(fillet2)
fillet2.Base = (fillet, edges_at(fillet, [
    (55.548, -37.939, -5.5),
    (-32.852, -37.939, -5.5),
    (55.548, 20.461, -5.5),
    (-32.852, 20.461, -5.5),
]))
fillet2.Radius = 2.5
doc.recompute()

fillet3 = doc.addObject("PartDesign::Fillet", "Fillet002")
body.addObject(fillet3)
fillet3.Base = (fillet2, edges_at(fillet2, [
    (11.348, 21.261, 2),
    (56.348, -8.739, 2),
    (-33.652, -8.739, 2),
    (11.348, -38.739, 2),
    (-32.92, 20.529, 2),
    (-32.92, -38.007, 2),
    (55.616, -38.007, 2),
    (55.616, 20.529, 2),
]))
fillet3.Radius = 0.5

doc.recompute()
